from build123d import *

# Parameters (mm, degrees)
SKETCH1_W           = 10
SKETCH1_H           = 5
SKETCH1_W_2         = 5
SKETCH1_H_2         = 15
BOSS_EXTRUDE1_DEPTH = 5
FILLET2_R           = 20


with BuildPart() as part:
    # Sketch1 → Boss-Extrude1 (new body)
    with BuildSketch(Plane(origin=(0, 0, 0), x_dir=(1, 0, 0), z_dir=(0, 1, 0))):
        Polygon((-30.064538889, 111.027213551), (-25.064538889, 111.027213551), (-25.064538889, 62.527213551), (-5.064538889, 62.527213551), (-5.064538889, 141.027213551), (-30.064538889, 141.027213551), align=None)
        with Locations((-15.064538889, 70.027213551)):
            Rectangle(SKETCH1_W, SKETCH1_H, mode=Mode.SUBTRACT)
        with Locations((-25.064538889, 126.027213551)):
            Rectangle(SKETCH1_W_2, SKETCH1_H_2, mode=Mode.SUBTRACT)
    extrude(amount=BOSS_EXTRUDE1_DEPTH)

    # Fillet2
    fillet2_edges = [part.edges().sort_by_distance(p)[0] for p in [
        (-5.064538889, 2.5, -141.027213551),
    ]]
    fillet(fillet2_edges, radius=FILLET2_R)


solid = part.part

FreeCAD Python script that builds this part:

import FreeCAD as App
import Part
import Sketcher

V = App.Vector


def edges_at(feature, points):
    """Names of the edges that pass closest to the given points."""
    edges = feature.Shape.Edges
    near = lambda p: min(range(len(edges)), key=lambda i: edges[i].distToShape(Part.Vertex(*p))[0])
    return sorted({f"Edge{near(p) + 1}" for p in points})

doc = App.newDocument("Part")
body = doc.addObject("PartDesign::Body", "Body")

# Sketch on XZ plane
sketch1 = doc.addObject("Sketcher::SketchObject", "Sketch")
body.addObject(sketch1)
sketch1.AttachmentSupport = (doc.XZ_Plane, [""])
sketch1.MapMode = "FlatFace"
sketch1.addGeometry([
    Part.LineSegment(V(-30, -111, 0), V(-25, -111, 0)),  # 0
    Part.LineSegment(V(-25, -111, 0), V(-25, -63, 0)),  # 1
    Part.LineSegment(V(-25, -63, 0), V(-5, -63, 0)),  # 2
    Part.LineSegment(V(-5, -63, 0), V(-5, -141, 0)),  # 3
    Part.LineSegment(V(-5, -141, 0), V(-30, -141, 0)),  # 4
    Part.LineSegment(V(-30, -141, 0), V(-30, -111, 0)),  # 5
    Part.LineSegment(V(-10, -68, 0), V(-20, -68, 0)),  # 6
    Part.LineSegment(V(-20, -68, 0), V(-20, -73, 0)),  # 7
    Part.LineSegment(V(-20, -73, 0), V(-10, -73, 0)),  # 8
    Part.LineSegment(V(-10, -73, 0), V(-10, -68, 0)),  # 9
    Part.LineSegment(V(-23, -119, 0), V(-28, -119, 0)),  # 10
    Part.LineSegment(V(-28, -119, 0), V(-28, -134, 0)),  # 11
    Part.LineSegment(V(-28, -134, 0), V(-23, -134, 0)),  # 12
    Part.LineSegment(V(-23, -134, 0), V(-23, -119, 0)),  # 13
], False)
sketch1.addConstraint([
    Sketcher.Constraint("Coincident", 0, 2, 1, 1),
    Sketcher.Constraint("Coincident", 1, 2, 2, 1),
    Sketcher.Constraint("Coincident", 2, 2, 3, 1),
    Sketcher.Constraint("Coincident", 3, 2, 4, 1),
    Sketcher.Constraint("Coincident", 4, 2, 5, 1),
    Sketcher.Constraint("Coincident", 5, 2, 0, 1),
    Sketcher.Constraint("Coincident", 6, 2, 7, 1),
    Sketcher.Constraint("Coincident", 7, 2, 8, 1),
    Sketcher.Constraint("Coincident", 8, 2, 9, 1),
    Sketcher.Constraint("Coincident", 9, 2, 6, 1),
    Sketcher.Constraint("Coincident", 10, 2, 11, 1),
    Sketcher.Constraint("Coincident", 11, 2, 12, 1),
    Sketcher.Constraint("Coincident", 12, 2, 13, 1),
    Sketcher.Constraint("Coincident", 13, 2, 10, 1),
    Sketcher.Constraint("Horizontal", 0),
    Sketcher.Constraint("Vertical", 1),
    Sketcher.Constraint("Horizontal", 2),
    Sketcher.Constraint("Vertical", 3),
    Sketcher.Constraint("Horizontal", 4),
    Sketcher.Constraint("Vertical", 5),
    Sketcher.Constraint("Horizontal", 6),
    Sketcher.Constraint("Vertical", 7),
    Sketcher.Constraint("Horizontal", 8),
    Sketcher.Constraint("Vertical", 9),
    Sketcher.Constraint("Horizontal", 10),
    Sketcher.Constraint("Vertical", 11),
    Sketcher.Constraint("Horizontal", 12),
    Sketcher.Constraint("Vertical", 13),
    Sketcher.Constraint("Equal", 0, 10),
    Sketcher.Constraint("Equal", 12, 7),
    Sketcher.Constraint("DistanceX", 0, 1, 0, 2, 5.0),
    Sketcher.Constraint("DistanceX", 2, 1, 2, 2, 20.0),
    Sketcher.Constraint("DistanceX", 6, 2, 6, 1, 10.0),
    Sketcher.Constraint("DistanceY", 5, 1, 5, 2, 30.0),
    Sketcher.Constraint("DistanceY", 11, 2, 11, 1, 15.0),
    Sketcher.Constraint("DistanceY", 1, 1, 1, 2, 48.5),
    Sketcher.Constraint("DistanceX", 1, 2, 6, 2, 5.0),
    Sketcher.Constraint("DistanceY", 6, 2, 1, 2, 5.0),
    Sketcher.Constraint("DistanceY", 10, 2, 7, 2, 46.0),
    Sketcher.Constraint("DistanceX", 10, 2, 0, 2, 2.5),
    Sketcher.Constraint("DistanceX", 0, 2, -1, 1, 25.064539),
    Sketcher.Constraint("DistanceY", 0, 2, -1, 1, 111.027214),
])
pad1 = doc.addObject("PartDesign::Pad", "Pad")
body.addObject(pad1)
pad1.Profile = sketch1
pad1.Length = 5
pad1.Reversed = True
doc.recompute()

fillet = doc.addObject("PartDesign::Fillet", "Fillet")
body.addObject(fillet)
fillet.Base = (pad1, edges_at(pad1, [(-5.065, 2.5, -141.027)]))
fillet.Radius = 20

doc.recompute()
